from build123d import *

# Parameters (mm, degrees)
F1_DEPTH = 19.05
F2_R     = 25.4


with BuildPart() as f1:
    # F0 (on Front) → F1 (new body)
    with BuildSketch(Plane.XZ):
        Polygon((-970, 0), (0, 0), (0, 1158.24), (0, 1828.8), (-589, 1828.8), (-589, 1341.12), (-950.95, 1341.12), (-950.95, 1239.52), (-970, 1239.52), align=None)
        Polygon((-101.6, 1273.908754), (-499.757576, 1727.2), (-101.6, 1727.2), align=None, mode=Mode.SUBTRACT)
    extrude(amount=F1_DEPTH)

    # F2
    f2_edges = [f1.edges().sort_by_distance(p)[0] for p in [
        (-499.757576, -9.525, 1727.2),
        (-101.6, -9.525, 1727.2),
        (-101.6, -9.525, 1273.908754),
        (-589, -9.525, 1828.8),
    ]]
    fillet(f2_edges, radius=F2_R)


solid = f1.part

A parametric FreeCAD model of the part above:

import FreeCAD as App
import Part
import Sketcher
from FreeCAD import Vector
Q = App.Units.Quantity


def edges_at(feature, points):
    """Names of the edges that pass closest to the given points."""
    edges = feature.Shape.Edges
    near = lambda p: min(range(len(edges)), key=lambda i: edges[i].distToShape(Part.Vertex(*p))[0])
    return sorted({f"Edge{near(p) + 1}" for p in points})

doc = App.newDocument("Part")
params = doc.addObject("Spreadsheet::Sheet", "Params")
for row, (alias, value) in enumerate([
    ("sketch1_height", "72 in"),
    ("sketch1_height2", "4 in"),
    ("sketch1_height3", "19.2 in"),
    ("sketch1_width", "14.25 in"),
    ("pad1_length", "0.75 in"),
    ("fillet_radius", "1 in"),
], start=1):
    params.set(f"A{row}", alias)
    params.set(f"B{row}", "=" + value)
    params.setAlias(f"B{row}", alias)

body = doc.addObject("PartDesign::Body", "Body")

sketch1 = doc.addObject("Sketcher::SketchObject", "Sketch")
body.addObject(sketch1)
sketch1.AttachmentSupport = (doc.XZ_Plane, [""])
sketch1.MapMode = "FlatFace"
sketch1.addGeometry([
    Part.LineSegment(Vector(-970, 0, 0), Vector(0, 0, 0)),
    Part.LineSegment(Vector(0, 0, 0), Vector(0, 1828.8, 0)),
    Part.LineSegment(Vector(0, 1828.8, 0), Vector(-589, 1828.8, 0)),
    Part.LineSegment(Vector(-589, 1828.8, 0), Vector(-589, 1341.12, 0)),
    Part.LineSegment(Vector(-589, 1341.12, 0), Vector(-950.95, 1341.12, 0)),
    Part.LineSegment(Vector(-950.95, 1341.12, 0), Vector(-950.95, 1239.52, 0)),
    Part.LineSegment(Vector(-950.95, 1239.52, 0), Vector(-970, 1239.52, 0)),
    Part.LineSegment(Vector(-970, 1239.52, 0), Vector(-970, 0, 0)),
    Part.LineSegment(Vector(-101.6, 1727.2, 0), Vector(-101.6, 1273.908754, 0)),
    Part.LineSegment(Vector(-101.6, 1273.908754, 0), Vector(-499.757576, 1727.2, 0)),
    Part.LineSegment(Vector(-499.757576, 1727.2, 0), Vector(-101.6, 1727.2, 0)),
], False)
sketch1.addConstraint([
    Sketcher.Constraint("Coincident", 0, 2, 1, 1),
    Sketcher.Constraint("Coincident", 1, 2, 2, 1),
    Sketcher.Constraint("Coincident", 2, 2, 3, 1),
    Sketcher.Constraint("Coincident", 3, 2, 4, 1),
    Sketcher.Constraint("Coincident", 4, 2, 5, 1),
    Sketcher.Constraint("Coincident", 5, 2, 6, 1),
    Sketcher.Constraint("Coincident", 6, 2, 7, 1),
    Sketcher.Constraint("Coincident", 7, 2, 0, 1),
    Sketcher.Constraint("Coincident", 8, 2, 9, 1),
    Sketcher.Constraint("Coincident", 9, 2, 10, 1),
    Sketcher.Constraint("Coincident", 10, 2, 8, 1),
    Sketcher.Constraint("Horizontal", 0),
    Sketcher.Constraint("Vertical", 1),
    Sketcher.Constraint("Horizontal", 2),
    Sketcher.Constraint("Vertical", 3),
    Sketcher.Constraint("Horizontal", 4),
    Sketcher.Constraint("Vertical", 5),
    Sketcher.Constraint("Horizontal", 6),
    Sketcher.Constraint("Vertical", 7),
    Sketcher.Constraint("Vertical", 8),
    Sketcher.Constraint("Horizontal", 10),
    Sketcher.Constraint("Coincident", 0, 2, -1, 1),
    Sketcher.Constraint("DistanceY", 1, 1, 1, 2, Q("72 in")),
    Sketcher.Constraint("DistanceY", 5, 2, 5, 1, Q("4 in")),
    Sketcher.Constraint("DistanceY", 3, 2, 3, 1, Q("19.2 in")),
    Sketcher.Constraint("DistanceX", 8, 2, -1, 1, Q("4 in")),
    Sketcher.Constraint("DistanceY", -1, 1, 9, 2, Q("68 in")),
    Sketcher.Constraint("DistanceX", 6, 2, 3, 2, Q("15 in")),
    Sketcher.Constraint("DistanceX", 4, 2, 4, 1, Q("14.25 in")),
    Sketcher.Constraint("DistanceX", 0, 1, 0, 2, 970.0),
    Sketcher.Constraint("Distance", 9, 603.326122),
    Sketcher.Constraint("DistanceX", 10, 1, 10, 2, 398.157576),
])
sketch1.setExpression("Constraints[22]", "Params.sketch1_height")
sketch1.setExpression("Constraints[23]", "Params.sketch1_height2")
sketch1.setExpression("Constraints[24]", "Params.sketch1_height3")
sketch1.setExpression("Constraints[28]", "Params.sketch1_width")
pad1 = doc.addObject("PartDesign::Pad", "Pad")
body.addObject(pad1)
pad1.Profile = sketch1
pad1.setExpression("Length", "Params.pad1_length")
doc.recompute()

fillet = doc.addObject("PartDesign::Fillet", "Fillet")
body.addObject(fillet)
fillet.Base = (pad1, edges_at(pad1, [
    (-499.758, -9.525, 1727.2),
    (-101.6, -9.525, 1727.2),
    (-101.6, -9.525, 1273.909),
    (-589, -9.525, 1828.8),
]))
fillet.setExpression("Radius", "Params.fillet_radius")

doc.recompute()
